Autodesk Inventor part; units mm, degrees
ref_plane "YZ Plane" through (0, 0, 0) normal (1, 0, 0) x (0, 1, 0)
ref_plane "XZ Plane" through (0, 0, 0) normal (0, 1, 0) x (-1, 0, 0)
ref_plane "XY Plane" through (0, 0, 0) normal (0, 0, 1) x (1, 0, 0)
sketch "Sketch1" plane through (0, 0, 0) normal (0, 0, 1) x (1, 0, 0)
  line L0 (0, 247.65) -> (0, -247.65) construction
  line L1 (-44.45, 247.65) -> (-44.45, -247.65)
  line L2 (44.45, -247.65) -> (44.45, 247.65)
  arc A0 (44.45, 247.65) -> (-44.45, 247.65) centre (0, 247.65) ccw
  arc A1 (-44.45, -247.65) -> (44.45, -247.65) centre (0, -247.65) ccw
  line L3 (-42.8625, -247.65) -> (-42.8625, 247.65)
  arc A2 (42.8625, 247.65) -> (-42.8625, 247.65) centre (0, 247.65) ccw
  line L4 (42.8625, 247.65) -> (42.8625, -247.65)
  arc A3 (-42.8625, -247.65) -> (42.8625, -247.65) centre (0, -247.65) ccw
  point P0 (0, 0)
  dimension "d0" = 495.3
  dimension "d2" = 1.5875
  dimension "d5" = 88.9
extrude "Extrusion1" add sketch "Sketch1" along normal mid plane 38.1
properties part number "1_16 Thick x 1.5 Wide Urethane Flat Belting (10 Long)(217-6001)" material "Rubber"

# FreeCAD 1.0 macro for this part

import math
import FreeCAD as App
import Part
import Sketcher
Q = App.Units.Quantity

doc = App.newDocument("Part")
params = doc.addObject("Spreadsheet::Sheet", "Params")
for row, (alias, value) in enumerate([
    ("sketch1_radius", "1.75 in"),
    ("sketch1_height", "19.5 in"),
    ("sketch1_radius2", "1.6875 in"),
    ("pad1_length", "1.5 in"),
], start=1):
    params.set(f"A{row}", alias)
    params.set(f"B{row}", "=" + value)
    params.setAlias(f"B{row}", alias)

body = doc.addObject("PartDesign::Body", "Body")

# Sketch on XY plane
sketch1 = body.newObject("Sketcher::SketchObject", "Sketch")
sketch1.AttachmentSupport = (doc.getObject("XY_Plane"), [""])
sketch1.MapMode = "FlatFace"
sketch1.addGeometry([
    Part.ArcOfCircle(Part.Circle(App.Vector(0, 247.65, 0), App.Vector(0, 0, 1), 44.45), math.radians(0), math.radians(180)),  # 0
    Part.LineSegment(App.Vector(-44.45, 247.65, 0), App.Vector(-44.45, -247.65, 0)),  # 1
    Part.ArcOfCircle(Part.Circle(App.Vector(0, -247.65, 0), App.Vector(0, 0, 1), 44.45), math.radians(180), math.radians(360)),  # 2
    Part.LineSegment(App.Vector(44.45, -247.65, 0), App.Vector(44.45, 247.65, 0)),  # 3
    Part.ArcOfCircle(Part.Circle(App.Vector(0, -247.65, 0), App.Vector(0, 0, 1), 42.8625), math.radians(180), math.radians(360)),  # 4
    Part.LineSegment(App.Vector(-42.8625, -247.65, 0), App.Vector(-42.8625, 247.65, 0)),  # 5
    Part.ArcOfCircle(Part.Circle(App.Vector(0, 247.65, 0), App.Vector(0, 0, 1), 42.8625), math.radians(0), math.radians(180)),  # 6
    Part.LineSegment(App.Vector(42.8625, 247.65, 0), App.Vector(42.8625, -247.65, 0)),  # 7
], False)
sketch1.addConstraint([
    Sketcher.Constraint("Tangent", 0, 2, 1, 1),
    Sketcher.Constraint("Tangent", 1, 2, 2, 1),
    Sketcher.Constraint("Tangent", 2, 2, 3, 1),
    Sketcher.Constraint("Tangent", 3, 2, 0, 1),
    Sketcher.Constraint("Tangent", 4, 1, 5, 1),
    Sketcher.Constraint("Tangent", 5, 2, 6, 2),
    Sketcher.Constraint("Tangent", 6, 1, 7, 1),
    Sketcher.Constraint("Tangent", 7, 2, 4, 2),
    Sketcher.Constraint("Vertical", 1),
    Sketcher.Constraint("Vertical", 3),
    Sketcher.Constraint("Vertical", 5),
    Sketcher.Constraint("Vertical", 7),
    Sketcher.Constraint("Coincident", 4, 3, 2, 3),
    Sketcher.Constraint("Symmetric", 0, 3, 2, 3, -1, 1),
    Sketcher.Constraint("Horizontal", 6, 3, 0, 2),
    Sketcher.Constraint("Radius", 0, Q("1.75 in")),
    Sketcher.Constraint("DistanceY", 1, 2, 1, 1, Q("19.5 in")),
    Sketcher.Constraint("Radius", 4, Q("1.6875 in")),
])
sketch1.setExpression("Constraints[15]", "Params.sketch1_radius")
sketch1.setExpression("Constraints[16]", "Params.sketch1_height")
sketch1.setExpression("Constraints[17]", "Params.sketch1_radius2")
pad1 = body.newObject("PartDesign::Pad", "Pad")
pad1.Profile = sketch1
pad1.setExpression("Length", "Params.pad1_length")
pad1.Midplane = True

doc.recompute()
